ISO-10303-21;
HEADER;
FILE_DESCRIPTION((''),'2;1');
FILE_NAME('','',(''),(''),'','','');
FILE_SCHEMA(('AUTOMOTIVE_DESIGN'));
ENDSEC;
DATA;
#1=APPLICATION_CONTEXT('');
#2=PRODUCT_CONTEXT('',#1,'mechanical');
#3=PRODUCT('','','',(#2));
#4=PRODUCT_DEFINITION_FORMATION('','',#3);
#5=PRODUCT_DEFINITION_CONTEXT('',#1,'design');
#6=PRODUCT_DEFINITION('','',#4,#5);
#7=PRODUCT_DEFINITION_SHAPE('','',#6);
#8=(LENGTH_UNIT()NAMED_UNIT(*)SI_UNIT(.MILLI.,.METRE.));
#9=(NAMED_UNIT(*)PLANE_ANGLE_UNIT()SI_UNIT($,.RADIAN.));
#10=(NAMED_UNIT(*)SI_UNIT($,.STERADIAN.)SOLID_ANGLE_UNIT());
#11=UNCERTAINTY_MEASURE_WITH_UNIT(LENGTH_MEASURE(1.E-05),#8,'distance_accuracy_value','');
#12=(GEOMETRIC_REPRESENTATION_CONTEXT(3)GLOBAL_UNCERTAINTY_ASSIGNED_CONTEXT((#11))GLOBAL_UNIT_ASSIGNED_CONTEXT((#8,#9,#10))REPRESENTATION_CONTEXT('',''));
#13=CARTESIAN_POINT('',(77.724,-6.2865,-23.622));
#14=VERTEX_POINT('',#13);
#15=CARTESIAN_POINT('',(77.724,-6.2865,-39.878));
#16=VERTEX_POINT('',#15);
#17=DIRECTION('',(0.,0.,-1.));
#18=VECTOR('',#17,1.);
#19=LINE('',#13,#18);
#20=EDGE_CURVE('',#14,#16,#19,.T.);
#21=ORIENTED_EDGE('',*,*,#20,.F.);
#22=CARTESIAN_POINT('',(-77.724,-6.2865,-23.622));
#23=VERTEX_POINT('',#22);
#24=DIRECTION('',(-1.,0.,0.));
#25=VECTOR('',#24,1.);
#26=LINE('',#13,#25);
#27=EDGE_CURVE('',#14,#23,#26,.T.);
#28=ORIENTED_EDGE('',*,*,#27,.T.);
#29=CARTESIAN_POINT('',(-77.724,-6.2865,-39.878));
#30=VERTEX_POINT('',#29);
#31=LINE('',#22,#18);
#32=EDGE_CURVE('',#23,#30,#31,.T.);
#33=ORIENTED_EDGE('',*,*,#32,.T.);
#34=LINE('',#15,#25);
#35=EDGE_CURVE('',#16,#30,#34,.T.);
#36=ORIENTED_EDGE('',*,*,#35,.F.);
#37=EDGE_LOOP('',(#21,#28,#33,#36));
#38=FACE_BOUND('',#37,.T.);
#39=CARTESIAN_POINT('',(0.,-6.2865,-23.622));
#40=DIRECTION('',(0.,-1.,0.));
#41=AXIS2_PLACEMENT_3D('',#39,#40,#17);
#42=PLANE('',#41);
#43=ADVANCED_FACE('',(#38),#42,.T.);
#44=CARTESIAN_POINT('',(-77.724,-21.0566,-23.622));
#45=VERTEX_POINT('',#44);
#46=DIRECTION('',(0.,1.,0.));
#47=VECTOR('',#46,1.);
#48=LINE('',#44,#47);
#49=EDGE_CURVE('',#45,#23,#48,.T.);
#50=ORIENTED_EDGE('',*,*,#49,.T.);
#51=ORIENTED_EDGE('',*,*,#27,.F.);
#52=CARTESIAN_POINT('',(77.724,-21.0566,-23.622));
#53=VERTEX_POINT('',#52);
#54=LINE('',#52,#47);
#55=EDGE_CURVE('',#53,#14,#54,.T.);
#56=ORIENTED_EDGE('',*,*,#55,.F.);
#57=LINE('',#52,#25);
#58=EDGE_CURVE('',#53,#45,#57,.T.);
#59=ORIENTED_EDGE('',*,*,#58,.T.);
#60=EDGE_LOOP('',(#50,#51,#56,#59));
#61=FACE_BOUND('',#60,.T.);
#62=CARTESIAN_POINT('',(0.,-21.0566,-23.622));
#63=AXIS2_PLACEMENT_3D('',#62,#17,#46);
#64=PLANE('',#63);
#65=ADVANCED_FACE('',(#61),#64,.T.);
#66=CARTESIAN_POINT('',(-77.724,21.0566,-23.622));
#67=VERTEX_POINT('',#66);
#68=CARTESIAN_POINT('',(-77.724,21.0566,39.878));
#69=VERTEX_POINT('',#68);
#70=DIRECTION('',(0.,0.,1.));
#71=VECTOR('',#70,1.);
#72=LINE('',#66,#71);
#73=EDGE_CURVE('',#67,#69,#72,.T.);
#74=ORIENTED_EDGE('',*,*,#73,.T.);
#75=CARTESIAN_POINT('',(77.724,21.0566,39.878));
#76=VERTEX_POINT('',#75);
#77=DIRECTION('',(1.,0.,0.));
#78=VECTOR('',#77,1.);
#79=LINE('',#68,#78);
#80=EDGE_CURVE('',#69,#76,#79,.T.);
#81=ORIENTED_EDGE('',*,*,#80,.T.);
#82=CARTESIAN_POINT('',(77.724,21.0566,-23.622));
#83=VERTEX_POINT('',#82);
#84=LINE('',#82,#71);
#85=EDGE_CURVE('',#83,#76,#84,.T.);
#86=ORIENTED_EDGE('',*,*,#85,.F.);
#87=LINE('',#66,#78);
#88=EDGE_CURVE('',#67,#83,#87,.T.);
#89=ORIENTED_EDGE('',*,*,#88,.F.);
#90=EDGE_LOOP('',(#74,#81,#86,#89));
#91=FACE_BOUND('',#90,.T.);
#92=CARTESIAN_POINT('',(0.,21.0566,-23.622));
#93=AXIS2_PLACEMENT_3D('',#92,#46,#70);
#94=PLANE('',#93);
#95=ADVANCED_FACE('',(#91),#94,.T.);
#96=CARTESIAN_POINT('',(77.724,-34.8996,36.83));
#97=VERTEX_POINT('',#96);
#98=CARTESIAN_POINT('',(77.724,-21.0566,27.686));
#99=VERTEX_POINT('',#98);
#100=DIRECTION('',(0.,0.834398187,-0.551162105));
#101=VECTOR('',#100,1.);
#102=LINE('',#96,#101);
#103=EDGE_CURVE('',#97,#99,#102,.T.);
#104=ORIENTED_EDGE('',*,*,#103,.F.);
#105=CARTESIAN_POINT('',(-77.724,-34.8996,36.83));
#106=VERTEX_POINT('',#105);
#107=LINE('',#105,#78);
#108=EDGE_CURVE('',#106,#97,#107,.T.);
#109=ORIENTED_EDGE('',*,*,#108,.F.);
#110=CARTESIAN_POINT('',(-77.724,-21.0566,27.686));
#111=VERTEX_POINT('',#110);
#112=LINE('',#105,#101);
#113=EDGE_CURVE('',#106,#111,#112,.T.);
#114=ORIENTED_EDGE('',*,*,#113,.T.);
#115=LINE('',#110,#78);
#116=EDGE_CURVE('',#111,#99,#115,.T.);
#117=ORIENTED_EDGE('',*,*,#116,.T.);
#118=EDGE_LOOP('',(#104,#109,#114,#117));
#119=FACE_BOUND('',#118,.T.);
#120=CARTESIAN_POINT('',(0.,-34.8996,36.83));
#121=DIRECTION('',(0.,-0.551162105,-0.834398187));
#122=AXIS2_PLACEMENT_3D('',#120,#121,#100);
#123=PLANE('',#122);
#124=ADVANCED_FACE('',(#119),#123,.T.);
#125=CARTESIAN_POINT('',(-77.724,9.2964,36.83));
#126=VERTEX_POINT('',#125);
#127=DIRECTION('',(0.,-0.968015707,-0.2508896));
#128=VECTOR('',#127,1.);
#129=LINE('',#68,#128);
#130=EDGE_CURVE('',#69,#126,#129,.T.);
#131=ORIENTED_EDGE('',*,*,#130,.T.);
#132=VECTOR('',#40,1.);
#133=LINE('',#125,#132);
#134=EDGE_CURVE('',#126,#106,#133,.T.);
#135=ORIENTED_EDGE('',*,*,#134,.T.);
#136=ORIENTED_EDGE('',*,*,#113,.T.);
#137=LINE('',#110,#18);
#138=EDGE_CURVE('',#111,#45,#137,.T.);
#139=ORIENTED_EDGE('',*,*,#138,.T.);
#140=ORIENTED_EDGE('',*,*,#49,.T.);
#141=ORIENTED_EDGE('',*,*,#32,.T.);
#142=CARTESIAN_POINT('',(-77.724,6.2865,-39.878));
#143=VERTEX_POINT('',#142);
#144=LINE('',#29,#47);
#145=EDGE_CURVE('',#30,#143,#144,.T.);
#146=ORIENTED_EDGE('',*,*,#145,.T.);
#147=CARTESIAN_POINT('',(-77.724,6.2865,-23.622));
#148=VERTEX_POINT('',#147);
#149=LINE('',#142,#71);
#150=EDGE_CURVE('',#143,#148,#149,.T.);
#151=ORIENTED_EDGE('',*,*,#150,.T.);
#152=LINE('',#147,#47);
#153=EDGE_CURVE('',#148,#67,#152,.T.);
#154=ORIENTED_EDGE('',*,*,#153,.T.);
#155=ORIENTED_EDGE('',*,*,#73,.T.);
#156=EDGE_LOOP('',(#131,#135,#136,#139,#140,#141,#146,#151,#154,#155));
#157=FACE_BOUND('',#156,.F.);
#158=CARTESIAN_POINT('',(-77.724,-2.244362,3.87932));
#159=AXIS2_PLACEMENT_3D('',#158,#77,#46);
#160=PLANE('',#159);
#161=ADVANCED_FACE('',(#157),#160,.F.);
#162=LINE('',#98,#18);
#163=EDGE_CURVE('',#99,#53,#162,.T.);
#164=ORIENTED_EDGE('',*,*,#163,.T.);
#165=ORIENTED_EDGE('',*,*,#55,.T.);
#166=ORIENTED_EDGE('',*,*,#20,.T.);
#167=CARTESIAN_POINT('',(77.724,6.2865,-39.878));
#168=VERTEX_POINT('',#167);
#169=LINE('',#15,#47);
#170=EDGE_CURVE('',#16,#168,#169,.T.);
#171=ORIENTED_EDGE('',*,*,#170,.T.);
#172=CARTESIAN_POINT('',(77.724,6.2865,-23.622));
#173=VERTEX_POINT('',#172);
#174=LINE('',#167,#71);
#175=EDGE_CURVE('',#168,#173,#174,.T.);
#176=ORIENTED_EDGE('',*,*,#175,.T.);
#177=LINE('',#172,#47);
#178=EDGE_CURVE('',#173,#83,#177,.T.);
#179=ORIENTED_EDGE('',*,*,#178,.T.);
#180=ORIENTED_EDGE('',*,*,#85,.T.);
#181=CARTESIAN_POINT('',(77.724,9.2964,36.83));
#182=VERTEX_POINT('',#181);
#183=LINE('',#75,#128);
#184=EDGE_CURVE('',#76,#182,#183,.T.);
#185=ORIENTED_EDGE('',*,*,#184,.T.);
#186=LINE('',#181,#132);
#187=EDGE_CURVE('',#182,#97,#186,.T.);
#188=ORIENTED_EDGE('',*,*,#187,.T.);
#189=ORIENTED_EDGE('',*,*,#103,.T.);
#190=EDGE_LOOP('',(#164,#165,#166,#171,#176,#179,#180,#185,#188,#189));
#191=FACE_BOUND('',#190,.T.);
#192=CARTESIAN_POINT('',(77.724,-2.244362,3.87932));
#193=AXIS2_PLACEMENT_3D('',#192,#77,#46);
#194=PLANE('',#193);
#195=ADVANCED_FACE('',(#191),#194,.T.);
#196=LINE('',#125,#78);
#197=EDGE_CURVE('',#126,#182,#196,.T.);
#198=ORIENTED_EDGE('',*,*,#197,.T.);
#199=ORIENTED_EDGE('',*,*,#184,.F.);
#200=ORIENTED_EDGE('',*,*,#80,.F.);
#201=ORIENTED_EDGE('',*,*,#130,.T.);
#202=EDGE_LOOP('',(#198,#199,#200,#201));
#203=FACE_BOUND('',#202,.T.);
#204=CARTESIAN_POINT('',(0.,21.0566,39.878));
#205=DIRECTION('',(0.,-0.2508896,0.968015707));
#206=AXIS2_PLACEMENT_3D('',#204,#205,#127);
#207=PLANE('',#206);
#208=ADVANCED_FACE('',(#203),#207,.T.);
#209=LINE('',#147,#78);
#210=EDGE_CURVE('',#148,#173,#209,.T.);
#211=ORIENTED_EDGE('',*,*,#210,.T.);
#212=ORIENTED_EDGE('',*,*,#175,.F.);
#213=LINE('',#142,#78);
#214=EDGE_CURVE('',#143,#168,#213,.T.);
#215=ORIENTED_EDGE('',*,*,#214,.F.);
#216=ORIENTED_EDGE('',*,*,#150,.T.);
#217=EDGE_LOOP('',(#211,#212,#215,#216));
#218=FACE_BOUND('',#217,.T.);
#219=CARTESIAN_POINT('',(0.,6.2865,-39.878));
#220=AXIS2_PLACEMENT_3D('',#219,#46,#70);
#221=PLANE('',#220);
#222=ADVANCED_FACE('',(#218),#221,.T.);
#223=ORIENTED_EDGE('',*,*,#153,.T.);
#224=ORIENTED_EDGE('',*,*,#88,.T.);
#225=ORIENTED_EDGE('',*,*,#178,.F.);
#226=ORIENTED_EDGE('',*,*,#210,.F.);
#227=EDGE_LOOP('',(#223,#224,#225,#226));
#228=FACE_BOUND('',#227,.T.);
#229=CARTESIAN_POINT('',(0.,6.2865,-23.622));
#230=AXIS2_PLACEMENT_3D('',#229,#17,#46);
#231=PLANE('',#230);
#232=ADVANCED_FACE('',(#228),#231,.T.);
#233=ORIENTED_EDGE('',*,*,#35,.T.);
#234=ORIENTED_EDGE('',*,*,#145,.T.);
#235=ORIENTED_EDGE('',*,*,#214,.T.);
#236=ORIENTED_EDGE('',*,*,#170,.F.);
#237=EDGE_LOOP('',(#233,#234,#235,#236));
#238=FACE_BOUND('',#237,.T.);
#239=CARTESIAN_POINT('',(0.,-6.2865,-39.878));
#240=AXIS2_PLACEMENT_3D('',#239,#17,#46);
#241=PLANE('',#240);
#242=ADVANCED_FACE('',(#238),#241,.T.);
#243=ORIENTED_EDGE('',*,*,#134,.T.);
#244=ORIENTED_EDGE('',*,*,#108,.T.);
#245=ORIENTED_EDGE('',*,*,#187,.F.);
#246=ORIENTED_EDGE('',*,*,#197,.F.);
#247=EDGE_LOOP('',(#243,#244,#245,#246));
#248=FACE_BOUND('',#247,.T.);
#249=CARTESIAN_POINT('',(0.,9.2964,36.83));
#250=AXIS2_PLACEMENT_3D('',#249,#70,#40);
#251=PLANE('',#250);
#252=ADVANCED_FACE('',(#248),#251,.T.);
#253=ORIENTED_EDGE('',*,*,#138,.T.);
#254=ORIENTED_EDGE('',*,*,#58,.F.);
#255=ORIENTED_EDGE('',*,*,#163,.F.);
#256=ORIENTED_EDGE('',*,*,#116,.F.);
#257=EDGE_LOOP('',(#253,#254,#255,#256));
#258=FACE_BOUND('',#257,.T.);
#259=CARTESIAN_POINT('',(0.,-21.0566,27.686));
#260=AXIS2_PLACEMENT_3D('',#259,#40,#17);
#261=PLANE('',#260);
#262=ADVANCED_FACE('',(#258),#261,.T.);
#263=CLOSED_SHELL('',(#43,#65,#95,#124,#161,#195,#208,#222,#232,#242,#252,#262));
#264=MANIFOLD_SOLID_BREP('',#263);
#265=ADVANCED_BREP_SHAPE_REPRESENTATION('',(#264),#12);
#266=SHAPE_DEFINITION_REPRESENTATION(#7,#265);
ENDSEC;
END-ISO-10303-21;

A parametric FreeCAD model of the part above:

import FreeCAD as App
import Part
import Sketcher
Q = App.Units.Quantity

doc = App.newDocument("Part")
params = doc.addObject("Spreadsheet::Sheet", "Params")
for row, (alias, value) in enumerate([
    ("sketch1_height", "2.5 in"),
    ("sketch1_width", "1.74 in"),
    ("sketch1_height2", "0.64 in"),
    ("sketch1_height3", "2.02 in"),
    ("sketch1_width2", "0.495 in"),
    ("pad1_length", "6.12 in"),
], start=1):
    params.set(f"A{row}", alias)
    params.set(f"B{row}", "=" + value)
    params.setAlias(f"B{row}", alias)

body = doc.addObject("PartDesign::Body", "Body")

# Sketch on YZ plane
sketch1 = body.newObject("Sketcher::SketchObject", "Sketch")
sketch1.AttachmentSupport = (doc.getObject("YZ_Plane"), [""])
sketch1.MapMode = "FlatFace"
sketch1.addGeometry(Part.LineSegment(App.Vector(-6, -40, 0), App.Vector(6, -40, 0)), False)
sketch1.addGeometry(Part.LineSegment(App.Vector(6, -40, 0), App.Vector(6, -24, 0)), False)
sketch1.addGeometry(Part.LineSegment(App.Vector(6, -24, 0), App.Vector(21, -24, 0)), False)
sketch1.addGeometry(Part.LineSegment(App.Vector(21, -24, 0), App.Vector(21, 40, 0)), False)
sketch1.addGeometry(Part.LineSegment(App.Vector(21, 40, 0), App.Vector(9, 37, 0)), False)
sketch1.addGeometry(Part.LineSegment(App.Vector(9, 37, 0), App.Vector(-35, 37, 0)), False)
sketch1.addGeometry(Part.LineSegment(App.Vector(-35, 37, 0), App.Vector(-21, 28, 0)), False)
sketch1.addGeometry(Part.LineSegment(App.Vector(-21, 28, 0), App.Vector(-21, -24, 0)), False)
sketch1.addGeometry(Part.LineSegment(App.Vector(-21, -24, 0), App.Vector(-6, -24, 0)), False)
sketch1.addGeometry(Part.LineSegment(App.Vector(-6, -24, 0), App.Vector(-6, -40, 0)), False)
sketch1.addConstraint(Sketcher.Constraint("Coincident", 0, 2, 1, 1))
sketch1.addConstraint(Sketcher.Constraint("Coincident", 1, 2, 2, 1))
sketch1.addConstraint(Sketcher.Constraint("Coincident", 2, 2, 3, 1))
sketch1.addConstraint(Sketcher.Constraint("Coincident", 3, 2, 4, 1))
sketch1.addConstraint(Sketcher.Constraint("Coincident", 4, 2, 5, 1))
sketch1.addConstraint(Sketcher.Constraint("Coincident", 5, 2, 6, 1))
sketch1.addConstraint(Sketcher.Constraint("Coincident", 6, 2, 7, 1))
sketch1.addConstraint(Sketcher.Constraint("Coincident", 7, 2, 8, 1))
sketch1.addConstraint(Sketcher.Constraint("Coincident", 8, 2, 9, 1))
sketch1.addConstraint(Sketcher.Constraint("Coincident", 9, 2, 0, 1))
sketch1.addConstraint(Sketcher.Constraint("Horizontal", 0))
sketch1.addConstraint(Sketcher.Constraint("Vertical", 1))
sketch1.addConstraint(Sketcher.Constraint("Horizontal", 2))
sketch1.addConstraint(Sketcher.Constraint("Vertical", 3))
sketch1.addConstraint(Sketcher.Constraint("Horizontal", 5))
sketch1.addConstraint(Sketcher.Constraint("Vertical", 7))
sketch1.addConstraint(Sketcher.Constraint("Horizontal", 8))
sketch1.addConstraint(Sketcher.Constraint("Vertical", 9))
sketch1.addConstraint(Sketcher.Constraint("Symmetric", 2, 2, 7, 2, -2))
sketch1.addConstraint(Sketcher.Constraint("Equal", 2, 8))
sketch1.addConstraint(Sketcher.Constraint("DistanceY", 3, 1, 3, 2, Q("2.5 in")))
sketch1.addConstraint(Sketcher.Constraint("DistanceX", 5, 2, 5, 1, Q("1.74 in")))
sketch1.addConstraint(Sketcher.Constraint("DistanceY", 1, 1, 1, 2, Q("0.64 in")))
sketch1.addConstraint(Sketcher.Constraint("DistanceY", 7, 2, 7, 1, Q("2.02 in")))
sketch1.addConstraint(Sketcher.Constraint("DistanceX", 0, 1, 0, 2, Q("0.495 in")))
sketch1.addConstraint(Sketcher.Constraint("DistanceY", 0, 2, -1, 1, Q("1.57 in")))
sketch1.addConstraint(Sketcher.Constraint("DistanceY", -1, 1, 4, 2, Q("1.45 in")))
sketch1.addConstraint(Sketcher.Constraint("DistanceX", 2, 1, 2, 2, Q("0.5815 in")))
sketch1.addConstraint(Sketcher.Constraint("DistanceX", -1, 1, 4, 2, Q("0.366 in")))
sketch1.setExpression("Constraints[20]", "Params.sketch1_height")
sketch1.setExpression("Constraints[21]", "Params.sketch1_width")
sketch1.setExpression("Constraints[22]", "Params.sketch1_height2")
sketch1.setExpression("Constraints[23]", "Params.sketch1_height3")
sketch1.setExpression("Constraints[24]", "Params.sketch1_width2")
pad1 = body.newObject("PartDesign::Pad", "Pad")
pad1.Profile = sketch1
pad1.setExpression("Length", "Params.pad1_length")
pad1.Midplane = True

doc.recompute()
